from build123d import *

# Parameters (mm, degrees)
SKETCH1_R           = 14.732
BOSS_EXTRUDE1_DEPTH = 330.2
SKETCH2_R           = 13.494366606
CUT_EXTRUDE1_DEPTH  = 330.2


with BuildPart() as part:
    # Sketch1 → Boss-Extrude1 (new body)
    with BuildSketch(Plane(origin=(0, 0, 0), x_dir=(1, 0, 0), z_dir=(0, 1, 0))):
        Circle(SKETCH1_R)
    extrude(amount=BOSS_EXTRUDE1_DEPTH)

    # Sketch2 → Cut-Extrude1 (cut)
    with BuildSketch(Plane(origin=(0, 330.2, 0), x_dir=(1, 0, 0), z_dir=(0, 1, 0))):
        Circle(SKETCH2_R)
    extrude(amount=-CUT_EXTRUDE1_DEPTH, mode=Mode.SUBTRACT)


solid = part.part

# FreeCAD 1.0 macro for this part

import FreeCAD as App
import Part
import Sketcher
Q = App.Units.Quantity

doc = App.newDocument("Part")
body = doc.addObject("PartDesign::Body", "Body")

sketch1 = doc.addObject("Sketcher::SketchObject", "Sketch")
body.addObject(sketch1)
sketch1.AttachmentSupport = (doc.XZ_Plane, [""])
sketch1.MapMode = "FlatFace"
sketch1.addGeometry(Part.Circle(App.Vector(0, 0, 0), App.Vector(0, 0, 1), 15), False)
sketch1.addConstraint([
    Sketcher.Constraint("Coincident", 0, 3, -1, 1),
    Sketcher.Constraint("Diameter", 0, Q("1.16 in")),
])
pad1 = doc.addObject("PartDesign::Pad", "Pad")
body.addObject(pad1)
pad1.Profile = sketch1
pad1.Length = Q("13 in")
pad1.Reversed = True

sketch2 = doc.addObject("Sketcher::SketchObject", "Sketch001")
body.addObject(sketch2)
sketch2.AttachmentSupport = (doc.XZ_Plane, [""])
sketch2.MapMode = "FlatFace"
sketch2.AttachmentOffset = App.Placement(App.Vector(0, 0, -13 * 25.4), App.Rotation())
sketch2.addGeometry(Part.Circle(App.Vector(0, 0, 0), App.Vector(0, 0, 1), 13), False)
sketch2.addConstraint([
    Sketcher.Constraint("Coincident", 0, 3, -1, 1),
    Sketcher.Constraint("Diameter", 0, 26.988733),
])
pocket1 = doc.addObject("PartDesign::Pocket", "Pocket")
body.addObject(pocket1)
pocket1.Profile = sketch2
pocket1.Length = Q("13 in")
pocket1.Reversed = True

doc.recompute()
